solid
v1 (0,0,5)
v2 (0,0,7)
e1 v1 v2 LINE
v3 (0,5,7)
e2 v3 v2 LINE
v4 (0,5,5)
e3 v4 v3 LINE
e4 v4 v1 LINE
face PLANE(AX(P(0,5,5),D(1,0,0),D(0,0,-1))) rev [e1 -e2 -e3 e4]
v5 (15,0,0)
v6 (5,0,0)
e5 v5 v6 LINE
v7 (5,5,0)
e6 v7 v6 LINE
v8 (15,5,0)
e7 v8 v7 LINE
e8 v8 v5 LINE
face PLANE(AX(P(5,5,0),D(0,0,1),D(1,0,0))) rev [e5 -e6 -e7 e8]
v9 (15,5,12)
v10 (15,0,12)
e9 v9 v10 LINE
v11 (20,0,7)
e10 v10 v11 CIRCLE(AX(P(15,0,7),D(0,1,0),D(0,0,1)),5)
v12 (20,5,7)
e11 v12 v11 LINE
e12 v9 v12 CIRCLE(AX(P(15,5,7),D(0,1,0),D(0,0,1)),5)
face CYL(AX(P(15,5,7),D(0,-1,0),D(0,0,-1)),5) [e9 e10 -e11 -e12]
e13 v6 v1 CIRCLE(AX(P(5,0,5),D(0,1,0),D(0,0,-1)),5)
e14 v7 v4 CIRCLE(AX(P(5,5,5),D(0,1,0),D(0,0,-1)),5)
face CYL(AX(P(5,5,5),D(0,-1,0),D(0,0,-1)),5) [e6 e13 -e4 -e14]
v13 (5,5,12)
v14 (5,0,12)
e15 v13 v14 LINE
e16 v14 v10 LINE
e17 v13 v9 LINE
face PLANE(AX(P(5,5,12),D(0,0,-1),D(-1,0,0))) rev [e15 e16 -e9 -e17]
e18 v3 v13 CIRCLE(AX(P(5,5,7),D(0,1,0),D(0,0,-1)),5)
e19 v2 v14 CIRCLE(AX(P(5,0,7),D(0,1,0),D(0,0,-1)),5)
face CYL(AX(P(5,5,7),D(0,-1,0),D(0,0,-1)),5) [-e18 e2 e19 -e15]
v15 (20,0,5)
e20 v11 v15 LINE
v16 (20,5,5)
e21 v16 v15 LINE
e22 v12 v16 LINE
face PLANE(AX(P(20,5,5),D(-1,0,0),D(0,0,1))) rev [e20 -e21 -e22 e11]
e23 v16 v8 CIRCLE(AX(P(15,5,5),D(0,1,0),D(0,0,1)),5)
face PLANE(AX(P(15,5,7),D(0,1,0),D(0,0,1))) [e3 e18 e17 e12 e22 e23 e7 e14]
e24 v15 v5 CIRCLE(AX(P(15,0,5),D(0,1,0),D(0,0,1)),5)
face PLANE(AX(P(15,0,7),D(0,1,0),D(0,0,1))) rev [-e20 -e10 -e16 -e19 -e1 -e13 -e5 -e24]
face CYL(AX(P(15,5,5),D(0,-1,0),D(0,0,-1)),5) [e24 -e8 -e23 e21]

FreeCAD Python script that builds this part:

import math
import FreeCAD as App
import Part
import Sketcher

V = App.Vector
Q = App.Units.Quantity

doc = App.newDocument("Part")
body = doc.addObject("PartDesign::Body", "Body")

# Sketch on XZ plane
sketch1 = doc.addObject("Sketcher::SketchObject", "Sketch")
body.addObject(sketch1)
sketch1.AttachmentSupport = (doc.XZ_Plane, [""])
sketch1.MapMode = "FlatFace"
sketch1.addGeometry(Part.LineSegment(V(15, 0, 0), V(5, 0, 0)), False)
sketch1.addGeometry(Part.ArcOfCircle(Part.Circle(V(5, 5, 0), V(0, 0, 1), 5), math.radians(180), math.radians(270)), False)
sketch1.addGeometry(Part.LineSegment(V(0, 5, 0), V(0, 7, 0)), False)
sketch1.addGeometry(Part.ArcOfCircle(Part.Circle(V(5, 7, 0), V(0, 0, 1), 5), math.radians(90), math.radians(180)), False)
sketch1.addGeometry(Part.LineSegment(V(5, 12, 0), V(15, 12, 0)), False)
sketch1.addGeometry(Part.ArcOfCircle(Part.Circle(V(15, 7, 0), V(0, 0, 1), 5), math.radians(0), math.radians(90)), False)
sketch1.addGeometry(Part.LineSegment(V(20, 7, 0), V(20, 5, 0)), False)
sketch1.addGeometry(Part.ArcOfCircle(Part.Circle(V(15, 5, 0), V(0, 0, 1), 5), math.radians(-90), math.radians(0)), False)
sketch1.addConstraint(Sketcher.Constraint("Tangent", 0, 2, 1, 2))
sketch1.addConstraint(Sketcher.Constraint("Tangent", 1, 1, 2, 1))
sketch1.addConstraint(Sketcher.Constraint("Tangent", 2, 2, 3, 2))
sketch1.addConstraint(Sketcher.Constraint("Tangent", 3, 1, 4, 1))
sketch1.addConstraint(Sketcher.Constraint("Tangent", 4, 2, 5, 2))
sketch1.addConstraint(Sketcher.Constraint("Tangent", 5, 1, 6, 1))
sketch1.addConstraint(Sketcher.Constraint("Tangent", 6, 2, 7, 2))
sketch1.addConstraint(Sketcher.Constraint("Tangent", 7, 1, 0, 1))
sketch1.addConstraint(Sketcher.Constraint("Horizontal", 0))
sketch1.addConstraint(Sketcher.Constraint("Vertical", 2))
sketch1.addConstraint(Sketcher.Constraint("Horizontal", 4))
sketch1.addConstraint(Sketcher.Constraint("Vertical", 6))
sketch1.addConstraint(Sketcher.Constraint("Equal", 1, 3))
sketch1.addConstraint(Sketcher.Constraint("Equal", 3, 5))
sketch1.addConstraint(Sketcher.Constraint("Equal", 5, 7))
sketch1.addConstraint(Sketcher.Constraint("PointOnObject", 0, 2, -1))
sketch1.addConstraint(Sketcher.Constraint("PointOnObject", 1, 1, -2))
sketch1.addConstraint(Sketcher.Constraint("Radius", 1, Q("5 mm")))
sketch1.addConstraint(Sketcher.Constraint("DistanceX", 0, 2, 0, 1, Q("10 mm")))
sketch1.addConstraint(Sketcher.Constraint("DistanceY", 2, 1, 2, 2, Q("2 mm")))
pad1 = doc.addObject("PartDesign::Pad", "Pad")
body.addObject(pad1)
pad1.Profile = sketch1
pad1.Length = 5
pad1.Reversed = True

doc.recompute()
